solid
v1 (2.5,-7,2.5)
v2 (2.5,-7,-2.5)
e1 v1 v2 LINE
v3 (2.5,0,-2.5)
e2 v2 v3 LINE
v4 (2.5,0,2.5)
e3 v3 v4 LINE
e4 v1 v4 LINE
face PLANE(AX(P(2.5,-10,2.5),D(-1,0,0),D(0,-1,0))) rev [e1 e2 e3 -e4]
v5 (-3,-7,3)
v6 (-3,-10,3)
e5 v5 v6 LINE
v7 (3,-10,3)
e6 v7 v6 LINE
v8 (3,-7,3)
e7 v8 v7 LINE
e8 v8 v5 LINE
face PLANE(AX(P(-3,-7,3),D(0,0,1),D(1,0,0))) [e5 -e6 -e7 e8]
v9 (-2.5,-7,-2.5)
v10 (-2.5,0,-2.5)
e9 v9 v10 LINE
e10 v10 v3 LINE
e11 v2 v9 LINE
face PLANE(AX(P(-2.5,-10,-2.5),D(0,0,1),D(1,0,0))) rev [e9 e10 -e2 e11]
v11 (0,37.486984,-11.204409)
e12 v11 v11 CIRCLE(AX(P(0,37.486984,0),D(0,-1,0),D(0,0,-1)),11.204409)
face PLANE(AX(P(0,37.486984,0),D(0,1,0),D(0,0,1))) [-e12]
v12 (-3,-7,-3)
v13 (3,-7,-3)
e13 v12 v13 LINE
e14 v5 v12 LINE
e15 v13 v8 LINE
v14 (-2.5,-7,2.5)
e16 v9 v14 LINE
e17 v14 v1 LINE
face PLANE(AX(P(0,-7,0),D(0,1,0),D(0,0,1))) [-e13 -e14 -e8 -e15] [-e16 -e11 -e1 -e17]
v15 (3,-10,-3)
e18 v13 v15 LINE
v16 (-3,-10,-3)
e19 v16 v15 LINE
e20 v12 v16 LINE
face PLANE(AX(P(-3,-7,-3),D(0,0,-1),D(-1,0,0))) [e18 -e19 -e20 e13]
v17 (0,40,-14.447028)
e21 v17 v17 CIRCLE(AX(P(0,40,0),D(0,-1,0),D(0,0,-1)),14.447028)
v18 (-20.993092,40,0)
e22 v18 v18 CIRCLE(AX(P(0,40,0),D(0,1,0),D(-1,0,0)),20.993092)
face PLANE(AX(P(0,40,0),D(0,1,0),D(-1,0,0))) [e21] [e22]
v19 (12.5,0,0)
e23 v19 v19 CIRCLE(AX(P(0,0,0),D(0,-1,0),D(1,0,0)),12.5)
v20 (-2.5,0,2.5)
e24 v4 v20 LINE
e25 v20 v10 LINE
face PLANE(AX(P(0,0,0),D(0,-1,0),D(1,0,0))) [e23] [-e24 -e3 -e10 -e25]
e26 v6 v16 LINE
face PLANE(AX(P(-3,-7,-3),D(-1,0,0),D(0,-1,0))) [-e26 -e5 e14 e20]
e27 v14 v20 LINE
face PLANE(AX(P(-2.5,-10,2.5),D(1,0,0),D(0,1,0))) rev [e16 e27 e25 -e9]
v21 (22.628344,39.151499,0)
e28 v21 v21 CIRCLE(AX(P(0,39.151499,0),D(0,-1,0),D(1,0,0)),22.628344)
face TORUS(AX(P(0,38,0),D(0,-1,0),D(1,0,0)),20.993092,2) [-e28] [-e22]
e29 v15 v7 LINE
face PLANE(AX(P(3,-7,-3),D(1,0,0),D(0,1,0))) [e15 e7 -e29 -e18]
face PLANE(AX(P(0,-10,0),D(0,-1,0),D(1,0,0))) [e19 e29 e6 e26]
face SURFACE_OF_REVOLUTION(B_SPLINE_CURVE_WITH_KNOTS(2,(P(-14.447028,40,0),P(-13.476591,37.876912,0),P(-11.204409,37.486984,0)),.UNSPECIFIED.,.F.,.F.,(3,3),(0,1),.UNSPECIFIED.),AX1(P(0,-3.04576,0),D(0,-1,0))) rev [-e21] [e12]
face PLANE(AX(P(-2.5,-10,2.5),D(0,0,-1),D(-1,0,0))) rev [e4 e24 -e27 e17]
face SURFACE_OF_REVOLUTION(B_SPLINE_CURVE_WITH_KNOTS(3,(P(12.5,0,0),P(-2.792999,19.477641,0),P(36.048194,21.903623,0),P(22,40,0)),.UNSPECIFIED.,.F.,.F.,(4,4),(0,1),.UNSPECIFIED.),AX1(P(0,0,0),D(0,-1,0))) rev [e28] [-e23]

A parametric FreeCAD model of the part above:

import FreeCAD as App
import Part
import Sketcher
Q = App.Units.Quantity


def edges_at(feature, points):
    """Names of the edges that pass closest to the given points."""
    edges = feature.Shape.Edges
    near = lambda p: min(range(len(edges)), key=lambda i: edges[i].distToShape(Part.Vertex(*p))[0])
    return sorted({f"Edge{near(p) + 1}" for p in points})

doc = App.newDocument("Part")
params = doc.addObject("Spreadsheet::Sheet", "Params")
for row, (alias, value) in enumerate([
    ("revolution_angle", "360 deg"),
    ("groove_angle", "360 deg"),
    ("fillet_radius", "2 mm"),
    ("sketch3_width", "5 mm"),
    ("pad1_length", "10 mm"),
    ("sketch4_width", "6 mm"),
    ("pad2_length", "3 mm"),
], start=1):
    params.set(f"A{row}", alias)
    params.set(f"B{row}", "=" + value)
    params.setAlias(f"B{row}", alias)

body = doc.addObject("PartDesign::Body", "Body")

sketch1 = body.newObject("Sketcher::SketchObject", "Sketch")
sketch1.AttachmentSupport = (doc.getObject("XY_Plane"), [""])
sketch1.MapMode = "FlatFace"
sketch1.addGeometry(Part.LineSegment(App.Vector(0, 0, 0), App.Vector(12.5, 0, 0)), False)
sketch1.addGeometry(Part.BSplineCurve([App.Vector(12.5, 0, 0), App.Vector(-2.792999, 19.477641, 0), App.Vector(36.048194, 21.903623, 0), App.Vector(22, 40, 0)], [4, 4], [0, 1], False, 3, [1, 1, 1, 1], False), False)
sketch1.addGeometry(Part.LineSegment(App.Vector(22, 40, 0), App.Vector(0, 40, 0)), False)
sketch1.addGeometry(Part.LineSegment(App.Vector(0, 40, 0), App.Vector(0, 0, 0)), False)
sketch1.addConstraint(Sketcher.Constraint("Block", 1))
sketch1.addConstraint(Sketcher.Constraint("Coincident", 0, 2, 1, 1))
sketch1.addConstraint(Sketcher.Constraint("Coincident", 1, 2, 2, 1))
sketch1.addConstraint(Sketcher.Constraint("Coincident", 2, 2, 3, 1))
sketch1.addConstraint(Sketcher.Constraint("Coincident", 3, 2, 0, 1))
sketch1.addConstraint(Sketcher.Constraint("Horizontal", 0))
sketch1.addConstraint(Sketcher.Constraint("Horizontal", 2))
sketch1.addConstraint(Sketcher.Constraint("Vertical", 3))
sketch1.addConstraint(Sketcher.Constraint("PointOnObject", 2, 2, -2))
revolution = body.newObject("PartDesign::Revolution", "Revolution")
revolution.Profile = sketch1
revolution.ReferenceAxis = (sketch1, ["V_Axis"])
revolution.setExpression("Angle", "Params.revolution_angle")

sketch2 = body.newObject("Sketcher::SketchObject", "Sketch001")
sketch2.AttachmentSupport = (doc.getObject("XY_Plane"), [""])
sketch2.MapMode = "FlatFace"
sketch2.addGeometry(Part.LineSegment(App.Vector(0, 40, 0), App.Vector(-14.447028, 40, 0)), False)
sketch2.addGeometry(Part.BSplineCurve([App.Vector(-14.447028, 40, 0), App.Vector(-13.476591, 37.876912, 0), App.Vector(-11.204409, 37.486984, 0)], [3, 3], [0, 1], False, 2, [1, 1, 1], False), False)
sketch2.addGeometry(Part.LineSegment(App.Vector(-11.204409, 37.486984, 0), App.Vector(0, 37.486984, 0)), False)
sketch2.addGeometry(Part.LineSegment(App.Vector(0, 37.486984, 0), App.Vector(0, 40, 0)), False)
sketch2.addConstraint(Sketcher.Constraint("Block", 1))
sketch2.addConstraint(Sketcher.Constraint("Coincident", 0, 2, 1, 1))
sketch2.addConstraint(Sketcher.Constraint("Coincident", 1, 2, 2, 1))
sketch2.addConstraint(Sketcher.Constraint("Coincident", 2, 2, 3, 1))
sketch2.addConstraint(Sketcher.Constraint("Coincident", 3, 2, 0, 1))
sketch2.addConstraint(Sketcher.Constraint("Horizontal", 0))
sketch2.addConstraint(Sketcher.Constraint("Horizontal", 2))
sketch2.addConstraint(Sketcher.Constraint("Vertical", 3))
sketch2.addConstraint(Sketcher.Constraint("PointOnObject", 2, 2, -2))
groove = body.newObject("PartDesign::Groove", "Groove")
groove.Profile = sketch2
groove.ReferenceAxis = (sketch2, ["V_Axis"])
groove.setExpression("Angle", "Params.groove_angle")
doc.recompute()

fillet = body.newObject("PartDesign::Fillet", "Fillet")
fillet.Base = (groove, edges_at(groove, [(-22, 40, 0)]))
fillet.setExpression("Radius", "Params.fillet_radius")

sketch3 = body.newObject("Sketcher::SketchObject", "Sketch002")
sketch3.AttachmentSupport = (doc.getObject("XZ_Plane"), [""])
sketch3.MapMode = "FlatFace"
sketch3.addGeometry(Part.LineSegment(App.Vector(-2, 2, 0), App.Vector(-2, -2, 0)), False)
sketch3.addGeometry(Part.LineSegment(App.Vector(-2, -2, 0), App.Vector(2, -2, 0)), False)
sketch3.addGeometry(Part.LineSegment(App.Vector(2, -2, 0), App.Vector(2, 2, 0)), False)
sketch3.addGeometry(Part.LineSegment(App.Vector(2, 2, 0), App.Vector(-2, 2, 0)), False)
sketch3.addConstraint(Sketcher.Constraint("Coincident", 0, 2, 1, 1))
sketch3.addConstraint(Sketcher.Constraint("Coincident", 1, 2, 2, 1))
sketch3.addConstraint(Sketcher.Constraint("Coincident", 2, 2, 3, 1))
sketch3.addConstraint(Sketcher.Constraint("Coincident", 3, 2, 0, 1))
sketch3.addConstraint(Sketcher.Constraint("Vertical", 0))
sketch3.addConstraint(Sketcher.Constraint("Horizontal", 1))
sketch3.addConstraint(Sketcher.Constraint("Vertical", 2))
sketch3.addConstraint(Sketcher.Constraint("Horizontal", 3))
sketch3.addConstraint(Sketcher.Constraint("Symmetric", 0, 2, 2, 2, -1, 1))
sketch3.addConstraint(Sketcher.Constraint("Equal", 3, 0))
sketch3.addConstraint(Sketcher.Constraint("DistanceX", 1, 1, 1, 2, Q("5 mm")))
sketch3.setExpression("Constraints[10]", "Params.sketch3_width")
pad1 = body.newObject("PartDesign::Pad", "Pad")
pad1.Profile = sketch3
pad1.setExpression("Length", "Params.pad1_length")

sketch4 = body.newObject("Sketcher::SketchObject", "Sketch003")
sketch4.AttachmentSupport = (doc.getObject("XZ_Plane"), [""])
sketch4.MapMode = "FlatFace"
sketch4.AttachmentOffset = App.Placement(App.Vector(0, 0, 10), App.Rotation())
sketch4.addGeometry(Part.LineSegment(App.Vector(-3, 3, 0), App.Vector(-3, -3, 0)), False)
sketch4.addGeometry(Part.LineSegment(App.Vector(-3, -3, 0), App.Vector(3, -3, 0)), False)
sketch4.addGeometry(Part.LineSegment(App.Vector(3, -3, 0), App.Vector(3, 3, 0)), False)
sketch4.addGeometry(Part.LineSegment(App.Vector(3, 3, 0), App.Vector(-3, 3, 0)), False)
sketch4.addConstraint(Sketcher.Constraint("Coincident", 0, 2, 1, 1))
sketch4.addConstraint(Sketcher.Constraint("Coincident", 1, 2, 2, 1))
sketch4.addConstraint(Sketcher.Constraint("Coincident", 2, 2, 3, 1))
sketch4.addConstraint(Sketcher.Constraint("Coincident", 3, 2, 0, 1))
sketch4.addConstraint(Sketcher.Constraint("Vertical", 0))
sketch4.addConstraint(Sketcher.Constraint("Horizontal", 1))
sketch4.addConstraint(Sketcher.Constraint("Vertical", 2))
sketch4.addConstraint(Sketcher.Constraint("Horizontal", 3))
sketch4.addConstraint(Sketcher.Constraint("Symmetric", 0, 2, 2, 2, -1, 1))
sketch4.addConstraint(Sketcher.Constraint("Equal", 3, 0))
sketch4.addConstraint(Sketcher.Constraint("DistanceX", 1, 1, 1, 2, Q("6 mm")))
sketch4.setExpression("Constraints[10]", "Params.sketch4_width")
pad2 = body.newObject("PartDesign::Pad", "Pad001")
pad2.Profile = sketch4
pad2.setExpression("Length", "Params.pad2_length")
pad2.Reversed = True

doc.recompute()
